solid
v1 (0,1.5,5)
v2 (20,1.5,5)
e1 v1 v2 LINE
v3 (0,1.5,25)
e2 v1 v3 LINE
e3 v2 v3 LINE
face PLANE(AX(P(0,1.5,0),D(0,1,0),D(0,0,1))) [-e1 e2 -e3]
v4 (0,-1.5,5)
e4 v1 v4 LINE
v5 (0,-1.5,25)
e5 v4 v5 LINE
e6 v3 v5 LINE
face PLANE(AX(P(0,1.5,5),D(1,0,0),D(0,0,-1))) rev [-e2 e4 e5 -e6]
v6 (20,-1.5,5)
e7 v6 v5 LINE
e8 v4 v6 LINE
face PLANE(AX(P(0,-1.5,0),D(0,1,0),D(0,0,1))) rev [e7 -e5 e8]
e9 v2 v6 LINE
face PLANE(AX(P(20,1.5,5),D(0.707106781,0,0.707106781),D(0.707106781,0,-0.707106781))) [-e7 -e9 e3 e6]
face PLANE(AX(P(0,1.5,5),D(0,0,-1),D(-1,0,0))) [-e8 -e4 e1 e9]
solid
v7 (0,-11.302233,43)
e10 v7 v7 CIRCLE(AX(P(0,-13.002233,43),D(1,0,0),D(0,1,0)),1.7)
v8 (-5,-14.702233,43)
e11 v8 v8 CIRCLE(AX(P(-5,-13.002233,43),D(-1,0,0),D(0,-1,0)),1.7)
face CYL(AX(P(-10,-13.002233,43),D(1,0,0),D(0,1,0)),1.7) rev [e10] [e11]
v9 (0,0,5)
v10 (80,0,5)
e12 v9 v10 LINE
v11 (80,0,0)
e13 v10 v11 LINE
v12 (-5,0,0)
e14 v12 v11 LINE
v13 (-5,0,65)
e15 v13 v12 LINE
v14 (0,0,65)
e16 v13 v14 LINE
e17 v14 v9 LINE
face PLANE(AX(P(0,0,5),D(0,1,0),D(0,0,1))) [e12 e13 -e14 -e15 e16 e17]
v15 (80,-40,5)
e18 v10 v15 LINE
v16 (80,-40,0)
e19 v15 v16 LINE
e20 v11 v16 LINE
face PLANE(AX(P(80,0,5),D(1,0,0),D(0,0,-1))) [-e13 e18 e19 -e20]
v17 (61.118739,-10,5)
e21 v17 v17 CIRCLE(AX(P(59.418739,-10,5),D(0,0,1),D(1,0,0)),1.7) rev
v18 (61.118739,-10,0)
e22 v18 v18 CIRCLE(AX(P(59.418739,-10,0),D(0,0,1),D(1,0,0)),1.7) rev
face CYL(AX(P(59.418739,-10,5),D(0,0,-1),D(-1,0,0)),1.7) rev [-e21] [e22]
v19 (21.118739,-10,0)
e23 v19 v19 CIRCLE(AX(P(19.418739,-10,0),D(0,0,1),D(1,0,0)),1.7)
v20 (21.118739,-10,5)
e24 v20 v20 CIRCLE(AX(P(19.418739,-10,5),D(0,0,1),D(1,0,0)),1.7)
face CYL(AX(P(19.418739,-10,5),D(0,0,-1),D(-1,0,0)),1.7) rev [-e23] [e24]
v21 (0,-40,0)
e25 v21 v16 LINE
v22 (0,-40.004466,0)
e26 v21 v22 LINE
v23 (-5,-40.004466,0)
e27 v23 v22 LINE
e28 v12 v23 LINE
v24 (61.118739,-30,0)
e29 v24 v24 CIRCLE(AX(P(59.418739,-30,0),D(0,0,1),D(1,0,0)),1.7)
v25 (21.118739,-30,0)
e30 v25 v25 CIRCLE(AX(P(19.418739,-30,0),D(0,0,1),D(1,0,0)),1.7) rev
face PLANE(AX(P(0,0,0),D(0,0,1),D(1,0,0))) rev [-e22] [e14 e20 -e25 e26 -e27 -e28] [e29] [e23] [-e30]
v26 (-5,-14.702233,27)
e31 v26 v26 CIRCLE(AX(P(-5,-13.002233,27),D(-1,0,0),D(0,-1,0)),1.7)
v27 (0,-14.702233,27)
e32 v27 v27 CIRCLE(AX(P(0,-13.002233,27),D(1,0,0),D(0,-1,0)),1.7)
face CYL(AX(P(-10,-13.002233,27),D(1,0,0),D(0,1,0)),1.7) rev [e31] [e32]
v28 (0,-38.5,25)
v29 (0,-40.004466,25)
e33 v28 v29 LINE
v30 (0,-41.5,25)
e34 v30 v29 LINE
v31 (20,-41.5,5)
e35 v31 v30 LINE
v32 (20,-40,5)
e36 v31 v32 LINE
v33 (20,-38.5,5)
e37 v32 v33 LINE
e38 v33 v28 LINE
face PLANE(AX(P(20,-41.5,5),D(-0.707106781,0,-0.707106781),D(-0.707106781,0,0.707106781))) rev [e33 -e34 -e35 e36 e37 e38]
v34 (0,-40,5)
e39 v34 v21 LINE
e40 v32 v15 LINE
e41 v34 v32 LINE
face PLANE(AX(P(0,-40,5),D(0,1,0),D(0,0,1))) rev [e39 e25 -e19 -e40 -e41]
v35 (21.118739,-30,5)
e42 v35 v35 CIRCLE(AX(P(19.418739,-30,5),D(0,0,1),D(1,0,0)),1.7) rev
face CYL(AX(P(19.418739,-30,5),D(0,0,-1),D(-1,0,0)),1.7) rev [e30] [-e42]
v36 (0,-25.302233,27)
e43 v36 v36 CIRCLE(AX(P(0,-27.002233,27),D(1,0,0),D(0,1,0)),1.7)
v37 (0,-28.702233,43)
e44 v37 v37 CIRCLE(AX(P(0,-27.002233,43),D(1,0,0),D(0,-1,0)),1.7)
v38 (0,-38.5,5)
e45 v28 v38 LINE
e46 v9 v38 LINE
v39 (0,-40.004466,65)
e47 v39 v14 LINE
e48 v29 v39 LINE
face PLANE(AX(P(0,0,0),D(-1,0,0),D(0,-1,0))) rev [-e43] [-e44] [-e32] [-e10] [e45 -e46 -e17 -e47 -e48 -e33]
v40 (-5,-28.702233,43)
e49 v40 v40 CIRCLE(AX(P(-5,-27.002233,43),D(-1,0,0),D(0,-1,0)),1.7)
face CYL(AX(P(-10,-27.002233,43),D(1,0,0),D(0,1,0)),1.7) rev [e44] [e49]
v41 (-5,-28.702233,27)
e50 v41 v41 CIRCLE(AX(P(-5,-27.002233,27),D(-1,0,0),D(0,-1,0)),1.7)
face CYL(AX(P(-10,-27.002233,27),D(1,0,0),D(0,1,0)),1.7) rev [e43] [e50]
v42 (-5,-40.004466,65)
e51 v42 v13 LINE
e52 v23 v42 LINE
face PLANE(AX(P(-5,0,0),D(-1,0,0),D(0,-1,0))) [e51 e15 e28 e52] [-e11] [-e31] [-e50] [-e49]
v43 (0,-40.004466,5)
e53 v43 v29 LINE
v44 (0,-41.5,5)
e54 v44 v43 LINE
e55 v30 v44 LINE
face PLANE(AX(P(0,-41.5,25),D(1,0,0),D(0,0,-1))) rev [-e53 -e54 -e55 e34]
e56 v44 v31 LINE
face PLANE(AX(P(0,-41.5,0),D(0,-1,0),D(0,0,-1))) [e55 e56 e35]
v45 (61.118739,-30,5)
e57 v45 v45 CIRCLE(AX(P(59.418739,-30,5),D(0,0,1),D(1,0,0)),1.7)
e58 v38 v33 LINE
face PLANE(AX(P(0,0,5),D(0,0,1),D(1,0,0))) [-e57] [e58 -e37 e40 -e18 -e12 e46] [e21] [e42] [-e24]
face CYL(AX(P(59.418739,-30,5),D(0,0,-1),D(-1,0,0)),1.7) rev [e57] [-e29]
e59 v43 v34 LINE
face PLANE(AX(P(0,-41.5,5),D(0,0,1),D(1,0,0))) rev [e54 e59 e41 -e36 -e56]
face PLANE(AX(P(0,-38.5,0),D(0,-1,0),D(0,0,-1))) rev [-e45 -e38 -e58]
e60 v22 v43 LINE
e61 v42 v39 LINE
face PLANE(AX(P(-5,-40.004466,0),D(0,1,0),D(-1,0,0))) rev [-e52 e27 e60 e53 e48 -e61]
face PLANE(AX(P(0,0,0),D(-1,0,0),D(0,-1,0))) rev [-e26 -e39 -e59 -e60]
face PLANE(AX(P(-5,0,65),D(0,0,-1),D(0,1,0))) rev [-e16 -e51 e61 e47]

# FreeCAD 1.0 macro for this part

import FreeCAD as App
import Part
import Sketcher
from FreeCAD import Vector


def add_polygon(sketch, points):
    """Adds a closed chain of lines whose ends are joined by coincident constraints."""
    first, n = sketch.GeometryCount, len(points)
    for a, b in zip(points, points[1:] + points[:1]):
        sketch.addGeometry(Part.LineSegment(App.Vector(*a, 0), App.Vector(*b, 0)), False)
    for i in range(n):
        sketch.addConstraint(Sketcher.Constraint("Coincident", first + i, 2, first + (i + 1) % n, 1))

doc = App.newDocument("Part")
body = doc.addObject("PartDesign::Body", "Body")

sketch1 = body.newObject("Sketcher::SketchObject", "Sketch")
sketch1.AttachmentSupport = (doc.getObject("XY_Plane"), [""])
sketch1.MapMode = "FlatFace"
add_polygon(sketch1, [(0, 0), (0, -40), (80, -40), (80, 0)])
sketch1.addGeometry(Part.Circle(Vector(19.4, -30, 0), Vector(0, 0, 1), 1.7), False)
sketch1.addGeometry(Part.Circle(Vector(59.4, -30, 0), Vector(0, 0, 1), 1.7), False)
sketch1.addGeometry(Part.Circle(Vector(19.4, -10, 0), Vector(0, 0, 1), 1.7), False)
sketch1.addGeometry(Part.Circle(Vector(59.4, -10, 0), Vector(0, 0, 1), 1.7), False)
sketch1.addConstraint([
    Sketcher.Constraint("Vertical", 0),
    Sketcher.Constraint("Horizontal", 1),
    Sketcher.Constraint("Vertical", 2),
    Sketcher.Constraint("Horizontal", 3),
    Sketcher.Constraint("Coincident", 3, 2, -1, 1),
    Sketcher.Constraint("Equal", 4, 5),
    Sketcher.Constraint("Equal", 5, 6),
    Sketcher.Constraint("Equal", 6, 7),
    Sketcher.Constraint("Horizontal", 4, 3, 5, 3),
    Sketcher.Constraint("Horizontal", 6, 3, 7, 3),
    Sketcher.Constraint("Vertical", 4, 3, 6, 3),
    Sketcher.Constraint("Vertical", 5, 3, 7, 3),
    Sketcher.Constraint("Diameter", 4, 3.4),
    Sketcher.Constraint("DistanceX", 1, 1, 1, 2, 80.0),
    Sketcher.Constraint("DistanceY", 0, 2, 0, 1, 40.0),
    Sketcher.Constraint("DistanceY", 4, 3, -1, 1, 30.0),
    Sketcher.Constraint("DistanceY", 6, 3, -1, 1, 10.0),
    Sketcher.Constraint("DistanceX", 4, 3, 5, 3, 40.0),
    Sketcher.Constraint("DistanceX", -1, 1, 4, 3, 19.418739),
])
pad1 = body.newObject("PartDesign::Pad", "Pad")
pad1.Profile = sketch1
pad1.Length = 5

sketch2 = body.newObject("Sketcher::SketchObject", "Sketch001")
sketch2.AttachmentSupport = (doc.getObject("YZ_Plane"), [""])
sketch2.MapMode = "FlatFace"
add_polygon(sketch2, [(0, 0), (-40, 0), (-40, 65), (0, 65)])
sketch2.addConstraint([
    Sketcher.Constraint("Horizontal", 0),
    Sketcher.Constraint("Vertical", 1),
    Sketcher.Constraint("Horizontal", 2),
    Sketcher.Constraint("Vertical", 3),
    Sketcher.Constraint("Coincident", 3, 2, -1, 1),
    Sketcher.Constraint("DistanceY", 1, 1, 1, 2, 65.0),
    Sketcher.Constraint("DistanceX", 0, 2, 0, 1, 40.004466),
])
pad2 = body.newObject("PartDesign::Pad", "Pad001")
pad2.Profile = sketch2
pad2.Length = 5
pad2.Reversed = True

sketch3 = body.newObject("Sketcher::SketchObject", "Sketch002")
sketch3.AttachmentSupport = (doc.getObject("YZ_Plane"), [""])
sketch3.MapMode = "FlatFace"
sketch3.addGeometry([
    Part.Circle(Vector(-13, 43, 0), Vector(0, 0, 1), 1.7),
    Part.Circle(Vector(-13, 27, 0), Vector(0, 0, 1), 1.7),
    Part.Circle(Vector(-27, 27, 0), Vector(0, 0, 1), 1.7),
    Part.Circle(Vector(-27, 43, 0), Vector(0, 0, 1), 1.7),
], False)
sketch3.addConstraint([
    Sketcher.Constraint("Equal", 0, 1),
    Sketcher.Constraint("Equal", 1, 2),
    Sketcher.Constraint("Equal", 2, 3),
    Sketcher.Constraint("Horizontal", 1, 3, 2, 3),
    Sketcher.Constraint("Horizontal", 0, 3, 3, 3),
    Sketcher.Constraint("Vertical", 0, 3, 1, 3),
    Sketcher.Constraint("Vertical", 2, 3, 3, 3),
    Sketcher.Constraint("Diameter", 0, 3.4),
    Sketcher.Constraint("DistanceY", -1, 1, 0, 3, 43.0),
    Sketcher.Constraint("DistanceY", -1, 1, 1, 3, 27.0),
    Sketcher.Constraint("DistanceX", 2, 3, 1, 3, 14.0),
    Sketcher.Constraint("DistanceX", 0, 3, -1, 1, 13.002233),
])
pocket1 = body.newObject("PartDesign::Pocket", "Pocket")
pocket1.Profile = sketch3
pocket1.Length = 10

sketch4 = body.newObject("Sketcher::SketchObject", "Sketch003")
sketch4.AttachmentSupport = (doc.getObject("XZ_Plane"), [""])
sketch4.MapMode = "FlatFace"
sketch4.AttachmentOffset = App.Placement(Vector(0, 0, 40), App.Rotation())
add_polygon(sketch4, [(0, 5), (20, 5), (0, 25)])
sketch4.addConstraint([
    Sketcher.Constraint("Horizontal", 0),
    Sketcher.Constraint("Vertical", 2),
    Sketcher.Constraint("PointOnObject", 1, 2, -2),
    Sketcher.Constraint("Equal", 0, 2),
    Sketcher.Constraint("DistanceX", 0, 1, 0, 2, 20.0),
    Sketcher.Constraint("DistanceY", -1, 1, 0, 2, 5.0),
])
pad3 = body.newObject("PartDesign::Pad", "Pad002")
pad3.Profile = sketch4
pad3.Length = 3
pad3.Midplane = True
body2 = doc.addObject("PartDesign::Body", "Body001")

sketch5 = body2.newObject("Sketcher::SketchObject", "Sketch004")
sketch5.AttachmentSupport = (doc.getObject("XZ_Plane001"), [""])
sketch5.MapMode = "FlatFace"
add_polygon(sketch5, [(20, 5), (0, 5), (0, 25)])
sketch5.addConstraint([
    Sketcher.Constraint("Horizontal", 0),
    Sketcher.Constraint("Vertical", 1),
    Sketcher.Constraint("PointOnObject", 0, 2, -2),
    Sketcher.Constraint("Equal", 0, 1),
    Sketcher.Constraint("DistanceX", 0, 2, 0, 1, 20.0),
    Sketcher.Constraint("DistanceY", -1, 1, 0, 2, 5.0),
])
pad4 = body2.newObject("PartDesign::Pad", "Pad003")
pad4.Profile = sketch5
pad4.Length = 3
pad4.Midplane = True

doc.recompute()
